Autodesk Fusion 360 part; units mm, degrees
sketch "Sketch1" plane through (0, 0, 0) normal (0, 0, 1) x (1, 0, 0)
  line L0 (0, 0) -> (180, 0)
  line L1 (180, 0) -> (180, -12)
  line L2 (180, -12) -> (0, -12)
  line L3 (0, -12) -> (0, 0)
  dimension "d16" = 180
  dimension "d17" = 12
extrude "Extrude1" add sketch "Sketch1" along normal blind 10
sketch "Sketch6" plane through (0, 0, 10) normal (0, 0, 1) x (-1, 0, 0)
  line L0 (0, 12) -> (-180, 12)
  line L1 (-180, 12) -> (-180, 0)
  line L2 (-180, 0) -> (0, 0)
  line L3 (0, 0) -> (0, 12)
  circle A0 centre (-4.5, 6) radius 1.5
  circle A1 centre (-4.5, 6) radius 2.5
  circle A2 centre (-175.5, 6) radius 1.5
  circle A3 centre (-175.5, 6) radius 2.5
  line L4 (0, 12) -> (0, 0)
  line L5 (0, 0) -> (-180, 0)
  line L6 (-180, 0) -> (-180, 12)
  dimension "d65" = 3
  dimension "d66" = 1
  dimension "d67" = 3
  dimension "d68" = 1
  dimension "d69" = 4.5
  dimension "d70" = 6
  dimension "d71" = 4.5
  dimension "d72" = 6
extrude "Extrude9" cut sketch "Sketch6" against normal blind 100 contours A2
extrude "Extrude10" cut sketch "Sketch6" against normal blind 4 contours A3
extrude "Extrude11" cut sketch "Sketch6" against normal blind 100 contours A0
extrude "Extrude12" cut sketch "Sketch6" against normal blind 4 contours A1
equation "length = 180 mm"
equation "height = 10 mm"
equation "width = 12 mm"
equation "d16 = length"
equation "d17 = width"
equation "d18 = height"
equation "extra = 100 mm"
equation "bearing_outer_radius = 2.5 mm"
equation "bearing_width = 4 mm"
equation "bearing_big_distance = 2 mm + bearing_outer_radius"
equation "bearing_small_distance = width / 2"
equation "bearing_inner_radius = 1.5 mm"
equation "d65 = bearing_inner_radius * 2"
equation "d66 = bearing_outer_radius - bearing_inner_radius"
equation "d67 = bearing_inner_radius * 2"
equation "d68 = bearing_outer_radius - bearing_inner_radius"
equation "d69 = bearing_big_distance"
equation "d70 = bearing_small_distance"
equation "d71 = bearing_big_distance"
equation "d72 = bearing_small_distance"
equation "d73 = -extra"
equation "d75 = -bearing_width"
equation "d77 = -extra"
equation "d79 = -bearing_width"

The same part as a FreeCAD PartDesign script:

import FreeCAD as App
import Part
import Sketcher
Q = App.Units.Quantity


def add_polygon(sketch, points):
    """Adds a closed chain of lines whose ends are joined by coincident constraints."""
    first, n = sketch.GeometryCount, len(points)
    for a, b in zip(points, points[1:] + points[:1]):
        sketch.addGeometry(Part.LineSegment(App.Vector(*a, 0), App.Vector(*b, 0)), False)
    for i in range(n):
        sketch.addConstraint(Sketcher.Constraint("Coincident", first + i, 2, first + (i + 1) % n, 1))

doc = App.newDocument("Part")
body = doc.addObject("PartDesign::Body", "Body")

sketch1 = body.newObject("Sketcher::SketchObject", "Sketch")
sketch1.AttachmentSupport = (doc.getObject("XY_Plane"), [""])
sketch1.MapMode = "FlatFace"
add_polygon(sketch1, [(180, 0), (0, 0), (0, -12), (180, -12)])
sketch1.addConstraint([
    Sketcher.Constraint("Horizontal", 0),
    Sketcher.Constraint("Vertical", 1),
    Sketcher.Constraint("Horizontal", 2),
    Sketcher.Constraint("Vertical", 3),
    Sketcher.Constraint("Coincident", 0, 2, -1, 1),
    Sketcher.Constraint("DistanceX", 0, 2, 0, 1, Q("180 mm")),
    Sketcher.Constraint("DistanceY", 1, 2, 1, 1, Q("12 mm")),
])
pad1 = body.newObject("PartDesign::Pad", "Pad")
pad1.Profile = sketch1
pad1.Length = 10

sketch2 = body.newObject("Sketcher::SketchObject", "Sketch001")
sketch2.AttachmentSupport = (doc.getObject("XY_Plane"), [""])
sketch2.MapMode = "FlatFace"
sketch2.AttachmentOffset = App.Placement(App.Vector(0, 0, 10), App.Rotation())
sketch2.addGeometry(Part.Circle(App.Vector(175.5, -6, 0), App.Vector(0, 0, 1), 1.5), False)
sketch2.addConstraint([
    Sketcher.Constraint("Diameter", 0, Q("3 mm")),
    Sketcher.Constraint("DistanceY", 0, 3, -1, 1, Q("6 mm")),
    Sketcher.Constraint("DistanceX", -1, 1, 0, 3, Q("175.5 mm")),
])
pocket1 = body.newObject("PartDesign::Pocket", "Pocket")
pocket1.Profile = sketch2
pocket1.Length = 100

sketch3 = body.newObject("Sketcher::SketchObject", "Sketch002")
sketch3.AttachmentSupport = (doc.getObject("XY_Plane"), [""])
sketch3.MapMode = "FlatFace"
sketch3.AttachmentOffset = App.Placement(App.Vector(0, 0, 10), App.Rotation())
sketch3.addGeometry([
    Part.Circle(App.Vector(175.5, -6, 0), App.Vector(0, 0, 1), 2.5),
    Part.Circle(App.Vector(175.5, -6, 0), App.Vector(0, 0, 1), 1.5),
], False)
sketch3.addConstraint([
    Sketcher.Constraint("Coincident", 1, 3, 0, 3),
    Sketcher.Constraint("Diameter", 1, Q("3 mm")),
    Sketcher.Constraint("Diameter", 0, Q("5 mm")),
    Sketcher.Constraint("DistanceY", 0, 3, -1, 1, Q("6 mm")),
    Sketcher.Constraint("DistanceX", -1, 1, 0, 3, Q("175.5 mm")),
])
pocket2 = body.newObject("PartDesign::Pocket", "Pocket001")
pocket2.Profile = sketch3
pocket2.Length = 4

sketch4 = body.newObject("Sketcher::SketchObject", "Sketch003")
sketch4.AttachmentSupport = (doc.getObject("XY_Plane"), [""])
sketch4.MapMode = "FlatFace"
sketch4.AttachmentOffset = App.Placement(App.Vector(0, 0, 10), App.Rotation())
sketch4.addGeometry(Part.Circle(App.Vector(4.5, -6, 0), App.Vector(0, 0, 1), 1.5), False)
sketch4.addConstraint([
    Sketcher.Constraint("Diameter", 0, Q("3 mm")),
    Sketcher.Constraint("DistanceY", 0, 3, -1, 1, Q("6 mm")),
    Sketcher.Constraint("DistanceX", -1, 1, 0, 3, Q("4.5 mm")),
])
pocket3 = body.newObject("PartDesign::Pocket", "Pocket002")
pocket3.Profile = sketch4
pocket3.Length = 100

sketch5 = body.newObject("Sketcher::SketchObject", "Sketch004")
sketch5.AttachmentSupport = (doc.getObject("XY_Plane"), [""])
sketch5.MapMode = "FlatFace"
sketch5.AttachmentOffset = App.Placement(App.Vector(0, 0, 10), App.Rotation())
sketch5.addGeometry([
    Part.Circle(App.Vector(4.5, -6, 0), App.Vector(0, 0, 1), 2.5),
    Part.Circle(App.Vector(4.5, -6, 0), App.Vector(0, 0, 1), 1.5),
], False)
sketch5.addConstraint([
    Sketcher.Constraint("Coincident", 1, 3, 0, 3),
    Sketcher.Constraint("Diameter", 1, Q("3 mm")),
    Sketcher.Constraint("Diameter", 0, Q("5 mm")),
    Sketcher.Constraint("DistanceY", 0, 3, -1, 1, Q("6 mm")),
    Sketcher.Constraint("DistanceX", -1, 1, 0, 3, Q("4.5 mm")),
])
pocket4 = body.newObject("PartDesign::Pocket", "Pocket003")
pocket4.Profile = sketch5
pocket4.Length = 4

doc.recompute()
